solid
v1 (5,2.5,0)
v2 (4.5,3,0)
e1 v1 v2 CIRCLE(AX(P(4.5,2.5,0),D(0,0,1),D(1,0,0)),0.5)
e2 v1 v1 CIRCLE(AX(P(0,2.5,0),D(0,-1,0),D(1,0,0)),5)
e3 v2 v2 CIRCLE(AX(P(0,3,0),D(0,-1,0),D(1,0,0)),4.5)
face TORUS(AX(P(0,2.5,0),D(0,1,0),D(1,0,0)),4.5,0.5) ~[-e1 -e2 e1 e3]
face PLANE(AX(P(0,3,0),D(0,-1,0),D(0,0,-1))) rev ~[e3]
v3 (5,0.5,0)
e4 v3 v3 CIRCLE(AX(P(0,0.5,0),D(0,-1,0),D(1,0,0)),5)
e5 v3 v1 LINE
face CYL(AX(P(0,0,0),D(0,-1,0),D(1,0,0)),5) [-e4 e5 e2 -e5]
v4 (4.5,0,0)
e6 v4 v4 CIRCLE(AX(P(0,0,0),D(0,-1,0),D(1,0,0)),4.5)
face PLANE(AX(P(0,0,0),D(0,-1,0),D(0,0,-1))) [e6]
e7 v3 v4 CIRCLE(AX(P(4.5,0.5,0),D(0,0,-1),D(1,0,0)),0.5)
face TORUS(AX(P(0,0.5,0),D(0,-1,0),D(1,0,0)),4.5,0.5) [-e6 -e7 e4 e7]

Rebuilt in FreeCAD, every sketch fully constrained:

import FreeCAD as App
import Part
import Sketcher


def edges_at(feature, points):
    """Names of the edges that pass closest to the given points."""
    edges = feature.Shape.Edges
    near = lambda p: min(range(len(edges)), key=lambda i: edges[i].distToShape(Part.Vertex(*p))[0])
    return sorted({f"Edge{near(p) + 1}" for p in points})

doc = App.newDocument("Part")
body = doc.addObject("PartDesign::Body", "Body")

# Sketch on XZ plane
sketch1 = body.newObject("Sketcher::SketchObject", "Sketch")
sketch1.AttachmentSupport = (doc.getObject("XZ_Plane"), [""])
sketch1.MapMode = "FlatFace"
sketch1.addGeometry(Part.Circle(App.Vector(0, 0, 0), App.Vector(0, 0, 1), 5), False)
sketch1.addConstraint(Sketcher.Constraint("Coincident", 0, 3, -1, 1))
sketch1.addConstraint(Sketcher.Constraint("Diameter", 0, 10.0))
pad1 = body.newObject("PartDesign::Pad", "Pad")
pad1.Profile = sketch1
pad1.Length = 3
pad1.Reversed = True
doc.recompute()

fillet = body.newObject("PartDesign::Fillet", "Fillet")
fillet.Base = (pad1, edges_at(pad1, [(-5, 0, 0), (-5, 3, 0)]))
fillet.Radius = 0.5

doc.recompute()
